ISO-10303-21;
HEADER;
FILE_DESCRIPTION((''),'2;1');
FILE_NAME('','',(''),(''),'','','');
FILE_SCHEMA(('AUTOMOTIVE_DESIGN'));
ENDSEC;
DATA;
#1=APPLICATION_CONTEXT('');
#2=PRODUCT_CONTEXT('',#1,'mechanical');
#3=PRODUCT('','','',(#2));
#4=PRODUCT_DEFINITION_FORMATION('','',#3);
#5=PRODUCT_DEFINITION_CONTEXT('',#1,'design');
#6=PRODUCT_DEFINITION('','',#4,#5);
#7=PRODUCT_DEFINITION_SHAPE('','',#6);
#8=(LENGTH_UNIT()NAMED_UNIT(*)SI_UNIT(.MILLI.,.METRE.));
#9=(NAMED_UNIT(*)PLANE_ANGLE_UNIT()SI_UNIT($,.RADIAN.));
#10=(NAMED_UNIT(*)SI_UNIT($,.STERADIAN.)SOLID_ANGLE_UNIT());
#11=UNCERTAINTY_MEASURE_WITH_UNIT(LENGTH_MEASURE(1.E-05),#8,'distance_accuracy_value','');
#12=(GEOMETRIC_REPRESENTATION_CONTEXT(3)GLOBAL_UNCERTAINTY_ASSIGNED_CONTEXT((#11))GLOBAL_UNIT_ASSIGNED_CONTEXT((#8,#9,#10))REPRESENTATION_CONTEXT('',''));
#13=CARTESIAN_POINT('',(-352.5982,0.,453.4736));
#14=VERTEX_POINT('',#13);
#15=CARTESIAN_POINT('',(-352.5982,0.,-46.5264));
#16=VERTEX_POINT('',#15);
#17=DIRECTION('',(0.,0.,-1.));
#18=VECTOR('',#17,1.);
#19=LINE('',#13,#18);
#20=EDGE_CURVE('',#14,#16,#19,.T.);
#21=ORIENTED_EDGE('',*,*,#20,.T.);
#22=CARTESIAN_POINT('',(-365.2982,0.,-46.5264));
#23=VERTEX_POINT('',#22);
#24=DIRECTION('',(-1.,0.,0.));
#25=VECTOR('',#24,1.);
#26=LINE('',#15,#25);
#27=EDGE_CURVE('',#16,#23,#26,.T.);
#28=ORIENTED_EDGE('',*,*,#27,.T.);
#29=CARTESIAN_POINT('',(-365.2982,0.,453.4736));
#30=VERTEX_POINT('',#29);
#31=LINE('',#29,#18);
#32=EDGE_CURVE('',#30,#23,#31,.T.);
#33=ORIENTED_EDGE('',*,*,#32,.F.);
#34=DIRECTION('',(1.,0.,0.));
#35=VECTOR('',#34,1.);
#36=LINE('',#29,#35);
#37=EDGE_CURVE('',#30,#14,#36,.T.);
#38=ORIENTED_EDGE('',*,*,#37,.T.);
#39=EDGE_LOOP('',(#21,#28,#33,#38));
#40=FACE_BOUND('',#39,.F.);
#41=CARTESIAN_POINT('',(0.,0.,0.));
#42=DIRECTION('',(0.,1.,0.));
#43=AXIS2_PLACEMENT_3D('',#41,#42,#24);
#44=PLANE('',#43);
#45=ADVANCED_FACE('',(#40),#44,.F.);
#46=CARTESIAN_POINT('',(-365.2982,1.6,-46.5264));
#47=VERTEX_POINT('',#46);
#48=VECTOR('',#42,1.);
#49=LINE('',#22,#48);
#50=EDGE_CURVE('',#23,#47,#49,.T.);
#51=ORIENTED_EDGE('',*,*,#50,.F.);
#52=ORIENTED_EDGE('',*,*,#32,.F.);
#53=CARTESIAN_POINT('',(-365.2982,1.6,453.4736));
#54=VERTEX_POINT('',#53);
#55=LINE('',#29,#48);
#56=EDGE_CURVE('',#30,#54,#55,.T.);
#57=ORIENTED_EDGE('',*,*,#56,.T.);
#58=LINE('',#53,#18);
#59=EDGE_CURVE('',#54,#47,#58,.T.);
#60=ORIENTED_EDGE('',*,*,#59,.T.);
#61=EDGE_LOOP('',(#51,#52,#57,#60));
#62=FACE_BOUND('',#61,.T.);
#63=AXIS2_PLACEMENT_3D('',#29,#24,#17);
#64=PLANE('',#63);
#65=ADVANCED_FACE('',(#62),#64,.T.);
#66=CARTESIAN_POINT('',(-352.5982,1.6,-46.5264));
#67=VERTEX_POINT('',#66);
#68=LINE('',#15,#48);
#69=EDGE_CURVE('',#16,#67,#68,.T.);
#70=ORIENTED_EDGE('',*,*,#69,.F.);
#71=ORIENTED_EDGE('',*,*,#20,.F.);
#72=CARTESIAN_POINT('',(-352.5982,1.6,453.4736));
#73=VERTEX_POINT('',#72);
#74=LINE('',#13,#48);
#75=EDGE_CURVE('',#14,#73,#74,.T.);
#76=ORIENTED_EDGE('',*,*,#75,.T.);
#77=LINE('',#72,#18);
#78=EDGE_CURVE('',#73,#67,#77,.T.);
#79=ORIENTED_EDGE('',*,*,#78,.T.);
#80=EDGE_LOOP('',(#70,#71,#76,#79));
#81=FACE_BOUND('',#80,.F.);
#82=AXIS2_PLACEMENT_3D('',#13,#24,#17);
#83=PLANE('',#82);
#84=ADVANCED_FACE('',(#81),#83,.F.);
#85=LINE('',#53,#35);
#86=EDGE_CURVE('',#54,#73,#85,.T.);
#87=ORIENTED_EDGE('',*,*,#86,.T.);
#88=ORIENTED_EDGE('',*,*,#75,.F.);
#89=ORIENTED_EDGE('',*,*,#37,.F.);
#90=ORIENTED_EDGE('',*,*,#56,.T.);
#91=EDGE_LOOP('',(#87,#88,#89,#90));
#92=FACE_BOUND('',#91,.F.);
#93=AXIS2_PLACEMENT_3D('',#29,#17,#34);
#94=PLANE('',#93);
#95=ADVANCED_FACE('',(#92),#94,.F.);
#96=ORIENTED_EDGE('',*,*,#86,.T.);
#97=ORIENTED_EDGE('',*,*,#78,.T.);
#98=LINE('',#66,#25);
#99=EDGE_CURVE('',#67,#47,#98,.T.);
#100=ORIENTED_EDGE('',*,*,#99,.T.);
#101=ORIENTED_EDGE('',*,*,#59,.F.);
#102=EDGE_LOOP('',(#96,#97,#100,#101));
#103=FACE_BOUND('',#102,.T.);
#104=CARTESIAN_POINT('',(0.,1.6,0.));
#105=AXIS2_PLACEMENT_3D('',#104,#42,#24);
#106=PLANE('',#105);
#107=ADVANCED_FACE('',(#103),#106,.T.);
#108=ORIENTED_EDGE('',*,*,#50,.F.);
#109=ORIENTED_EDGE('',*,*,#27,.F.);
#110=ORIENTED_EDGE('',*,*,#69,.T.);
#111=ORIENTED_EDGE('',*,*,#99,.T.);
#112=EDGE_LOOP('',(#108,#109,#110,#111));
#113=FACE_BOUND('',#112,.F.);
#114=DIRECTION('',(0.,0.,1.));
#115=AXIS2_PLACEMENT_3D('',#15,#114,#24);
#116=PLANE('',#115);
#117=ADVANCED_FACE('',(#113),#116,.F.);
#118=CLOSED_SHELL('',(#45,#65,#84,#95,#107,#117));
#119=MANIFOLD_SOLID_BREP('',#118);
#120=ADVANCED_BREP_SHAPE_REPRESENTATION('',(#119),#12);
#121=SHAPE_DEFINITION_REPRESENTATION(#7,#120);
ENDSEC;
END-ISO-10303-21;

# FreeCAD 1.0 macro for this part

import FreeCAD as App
import Part
import Sketcher
Q = App.Units.Quantity


def add_polygon(sketch, points):
    """Adds a closed chain of lines whose ends are joined by coincident constraints."""
    first, n = sketch.GeometryCount, len(points)
    for a, b in zip(points, points[1:] + points[:1]):
        sketch.addGeometry(Part.LineSegment(App.Vector(*a, 0), App.Vector(*b, 0)), False)
    for i in range(n):
        sketch.addConstraint(Sketcher.Constraint("Coincident", first + i, 2, first + (i + 1) % n, 1))

doc = App.newDocument("Part")
params = doc.addObject("Spreadsheet::Sheet", "Params")
for row, (alias, value) in enumerate([
    ("sketch1_width", "0.5 in"),
    ("pad1_length", "0.0629921 in"),
], start=1):
    params.set(f"A{row}", alias)
    params.set(f"B{row}", "=" + value)
    params.setAlias(f"B{row}", alias)

body = doc.addObject("PartDesign::Body", "Body")

# Sketch on XZ plane
sketch1 = body.newObject("Sketcher::SketchObject", "Sketch")
sketch1.AttachmentSupport = (doc.getObject("XZ_Plane"), [""])
sketch1.MapMode = "FlatFace"
add_polygon(sketch1, [(-365.2982, -46.5264), (-365.2982, 453.4736), (-352.5982, 453.4736), (-352.5982, -46.5264)])  # lines 0-3
sketch1.addConstraint([
    Sketcher.Constraint("Vertical", 0),
    Sketcher.Constraint("Horizontal", 1),
    Sketcher.Constraint("Vertical", 2),
    Sketcher.Constraint("Horizontal", 3),
    Sketcher.Constraint("DistanceX", 1, 1, 1, 2, Q("0.5 in")),
    Sketcher.Constraint("DistanceY", 0, 1, 0, 2, 500.0),
    Sketcher.Constraint("DistanceY", -1, 1, 0, 2, Q("17.8533 in")),
    Sketcher.Constraint("DistanceX", 0, 2, -1, 1, 365.2982),
])
sketch1.setExpression("Constraints[8]", "Params.sketch1_width")
pad1 = body.newObject("PartDesign::Pad", "Pad")
pad1.Profile = sketch1
pad1.setExpression("Length", "Params.pad1_length")
pad1.Reversed = True

doc.recompute()
